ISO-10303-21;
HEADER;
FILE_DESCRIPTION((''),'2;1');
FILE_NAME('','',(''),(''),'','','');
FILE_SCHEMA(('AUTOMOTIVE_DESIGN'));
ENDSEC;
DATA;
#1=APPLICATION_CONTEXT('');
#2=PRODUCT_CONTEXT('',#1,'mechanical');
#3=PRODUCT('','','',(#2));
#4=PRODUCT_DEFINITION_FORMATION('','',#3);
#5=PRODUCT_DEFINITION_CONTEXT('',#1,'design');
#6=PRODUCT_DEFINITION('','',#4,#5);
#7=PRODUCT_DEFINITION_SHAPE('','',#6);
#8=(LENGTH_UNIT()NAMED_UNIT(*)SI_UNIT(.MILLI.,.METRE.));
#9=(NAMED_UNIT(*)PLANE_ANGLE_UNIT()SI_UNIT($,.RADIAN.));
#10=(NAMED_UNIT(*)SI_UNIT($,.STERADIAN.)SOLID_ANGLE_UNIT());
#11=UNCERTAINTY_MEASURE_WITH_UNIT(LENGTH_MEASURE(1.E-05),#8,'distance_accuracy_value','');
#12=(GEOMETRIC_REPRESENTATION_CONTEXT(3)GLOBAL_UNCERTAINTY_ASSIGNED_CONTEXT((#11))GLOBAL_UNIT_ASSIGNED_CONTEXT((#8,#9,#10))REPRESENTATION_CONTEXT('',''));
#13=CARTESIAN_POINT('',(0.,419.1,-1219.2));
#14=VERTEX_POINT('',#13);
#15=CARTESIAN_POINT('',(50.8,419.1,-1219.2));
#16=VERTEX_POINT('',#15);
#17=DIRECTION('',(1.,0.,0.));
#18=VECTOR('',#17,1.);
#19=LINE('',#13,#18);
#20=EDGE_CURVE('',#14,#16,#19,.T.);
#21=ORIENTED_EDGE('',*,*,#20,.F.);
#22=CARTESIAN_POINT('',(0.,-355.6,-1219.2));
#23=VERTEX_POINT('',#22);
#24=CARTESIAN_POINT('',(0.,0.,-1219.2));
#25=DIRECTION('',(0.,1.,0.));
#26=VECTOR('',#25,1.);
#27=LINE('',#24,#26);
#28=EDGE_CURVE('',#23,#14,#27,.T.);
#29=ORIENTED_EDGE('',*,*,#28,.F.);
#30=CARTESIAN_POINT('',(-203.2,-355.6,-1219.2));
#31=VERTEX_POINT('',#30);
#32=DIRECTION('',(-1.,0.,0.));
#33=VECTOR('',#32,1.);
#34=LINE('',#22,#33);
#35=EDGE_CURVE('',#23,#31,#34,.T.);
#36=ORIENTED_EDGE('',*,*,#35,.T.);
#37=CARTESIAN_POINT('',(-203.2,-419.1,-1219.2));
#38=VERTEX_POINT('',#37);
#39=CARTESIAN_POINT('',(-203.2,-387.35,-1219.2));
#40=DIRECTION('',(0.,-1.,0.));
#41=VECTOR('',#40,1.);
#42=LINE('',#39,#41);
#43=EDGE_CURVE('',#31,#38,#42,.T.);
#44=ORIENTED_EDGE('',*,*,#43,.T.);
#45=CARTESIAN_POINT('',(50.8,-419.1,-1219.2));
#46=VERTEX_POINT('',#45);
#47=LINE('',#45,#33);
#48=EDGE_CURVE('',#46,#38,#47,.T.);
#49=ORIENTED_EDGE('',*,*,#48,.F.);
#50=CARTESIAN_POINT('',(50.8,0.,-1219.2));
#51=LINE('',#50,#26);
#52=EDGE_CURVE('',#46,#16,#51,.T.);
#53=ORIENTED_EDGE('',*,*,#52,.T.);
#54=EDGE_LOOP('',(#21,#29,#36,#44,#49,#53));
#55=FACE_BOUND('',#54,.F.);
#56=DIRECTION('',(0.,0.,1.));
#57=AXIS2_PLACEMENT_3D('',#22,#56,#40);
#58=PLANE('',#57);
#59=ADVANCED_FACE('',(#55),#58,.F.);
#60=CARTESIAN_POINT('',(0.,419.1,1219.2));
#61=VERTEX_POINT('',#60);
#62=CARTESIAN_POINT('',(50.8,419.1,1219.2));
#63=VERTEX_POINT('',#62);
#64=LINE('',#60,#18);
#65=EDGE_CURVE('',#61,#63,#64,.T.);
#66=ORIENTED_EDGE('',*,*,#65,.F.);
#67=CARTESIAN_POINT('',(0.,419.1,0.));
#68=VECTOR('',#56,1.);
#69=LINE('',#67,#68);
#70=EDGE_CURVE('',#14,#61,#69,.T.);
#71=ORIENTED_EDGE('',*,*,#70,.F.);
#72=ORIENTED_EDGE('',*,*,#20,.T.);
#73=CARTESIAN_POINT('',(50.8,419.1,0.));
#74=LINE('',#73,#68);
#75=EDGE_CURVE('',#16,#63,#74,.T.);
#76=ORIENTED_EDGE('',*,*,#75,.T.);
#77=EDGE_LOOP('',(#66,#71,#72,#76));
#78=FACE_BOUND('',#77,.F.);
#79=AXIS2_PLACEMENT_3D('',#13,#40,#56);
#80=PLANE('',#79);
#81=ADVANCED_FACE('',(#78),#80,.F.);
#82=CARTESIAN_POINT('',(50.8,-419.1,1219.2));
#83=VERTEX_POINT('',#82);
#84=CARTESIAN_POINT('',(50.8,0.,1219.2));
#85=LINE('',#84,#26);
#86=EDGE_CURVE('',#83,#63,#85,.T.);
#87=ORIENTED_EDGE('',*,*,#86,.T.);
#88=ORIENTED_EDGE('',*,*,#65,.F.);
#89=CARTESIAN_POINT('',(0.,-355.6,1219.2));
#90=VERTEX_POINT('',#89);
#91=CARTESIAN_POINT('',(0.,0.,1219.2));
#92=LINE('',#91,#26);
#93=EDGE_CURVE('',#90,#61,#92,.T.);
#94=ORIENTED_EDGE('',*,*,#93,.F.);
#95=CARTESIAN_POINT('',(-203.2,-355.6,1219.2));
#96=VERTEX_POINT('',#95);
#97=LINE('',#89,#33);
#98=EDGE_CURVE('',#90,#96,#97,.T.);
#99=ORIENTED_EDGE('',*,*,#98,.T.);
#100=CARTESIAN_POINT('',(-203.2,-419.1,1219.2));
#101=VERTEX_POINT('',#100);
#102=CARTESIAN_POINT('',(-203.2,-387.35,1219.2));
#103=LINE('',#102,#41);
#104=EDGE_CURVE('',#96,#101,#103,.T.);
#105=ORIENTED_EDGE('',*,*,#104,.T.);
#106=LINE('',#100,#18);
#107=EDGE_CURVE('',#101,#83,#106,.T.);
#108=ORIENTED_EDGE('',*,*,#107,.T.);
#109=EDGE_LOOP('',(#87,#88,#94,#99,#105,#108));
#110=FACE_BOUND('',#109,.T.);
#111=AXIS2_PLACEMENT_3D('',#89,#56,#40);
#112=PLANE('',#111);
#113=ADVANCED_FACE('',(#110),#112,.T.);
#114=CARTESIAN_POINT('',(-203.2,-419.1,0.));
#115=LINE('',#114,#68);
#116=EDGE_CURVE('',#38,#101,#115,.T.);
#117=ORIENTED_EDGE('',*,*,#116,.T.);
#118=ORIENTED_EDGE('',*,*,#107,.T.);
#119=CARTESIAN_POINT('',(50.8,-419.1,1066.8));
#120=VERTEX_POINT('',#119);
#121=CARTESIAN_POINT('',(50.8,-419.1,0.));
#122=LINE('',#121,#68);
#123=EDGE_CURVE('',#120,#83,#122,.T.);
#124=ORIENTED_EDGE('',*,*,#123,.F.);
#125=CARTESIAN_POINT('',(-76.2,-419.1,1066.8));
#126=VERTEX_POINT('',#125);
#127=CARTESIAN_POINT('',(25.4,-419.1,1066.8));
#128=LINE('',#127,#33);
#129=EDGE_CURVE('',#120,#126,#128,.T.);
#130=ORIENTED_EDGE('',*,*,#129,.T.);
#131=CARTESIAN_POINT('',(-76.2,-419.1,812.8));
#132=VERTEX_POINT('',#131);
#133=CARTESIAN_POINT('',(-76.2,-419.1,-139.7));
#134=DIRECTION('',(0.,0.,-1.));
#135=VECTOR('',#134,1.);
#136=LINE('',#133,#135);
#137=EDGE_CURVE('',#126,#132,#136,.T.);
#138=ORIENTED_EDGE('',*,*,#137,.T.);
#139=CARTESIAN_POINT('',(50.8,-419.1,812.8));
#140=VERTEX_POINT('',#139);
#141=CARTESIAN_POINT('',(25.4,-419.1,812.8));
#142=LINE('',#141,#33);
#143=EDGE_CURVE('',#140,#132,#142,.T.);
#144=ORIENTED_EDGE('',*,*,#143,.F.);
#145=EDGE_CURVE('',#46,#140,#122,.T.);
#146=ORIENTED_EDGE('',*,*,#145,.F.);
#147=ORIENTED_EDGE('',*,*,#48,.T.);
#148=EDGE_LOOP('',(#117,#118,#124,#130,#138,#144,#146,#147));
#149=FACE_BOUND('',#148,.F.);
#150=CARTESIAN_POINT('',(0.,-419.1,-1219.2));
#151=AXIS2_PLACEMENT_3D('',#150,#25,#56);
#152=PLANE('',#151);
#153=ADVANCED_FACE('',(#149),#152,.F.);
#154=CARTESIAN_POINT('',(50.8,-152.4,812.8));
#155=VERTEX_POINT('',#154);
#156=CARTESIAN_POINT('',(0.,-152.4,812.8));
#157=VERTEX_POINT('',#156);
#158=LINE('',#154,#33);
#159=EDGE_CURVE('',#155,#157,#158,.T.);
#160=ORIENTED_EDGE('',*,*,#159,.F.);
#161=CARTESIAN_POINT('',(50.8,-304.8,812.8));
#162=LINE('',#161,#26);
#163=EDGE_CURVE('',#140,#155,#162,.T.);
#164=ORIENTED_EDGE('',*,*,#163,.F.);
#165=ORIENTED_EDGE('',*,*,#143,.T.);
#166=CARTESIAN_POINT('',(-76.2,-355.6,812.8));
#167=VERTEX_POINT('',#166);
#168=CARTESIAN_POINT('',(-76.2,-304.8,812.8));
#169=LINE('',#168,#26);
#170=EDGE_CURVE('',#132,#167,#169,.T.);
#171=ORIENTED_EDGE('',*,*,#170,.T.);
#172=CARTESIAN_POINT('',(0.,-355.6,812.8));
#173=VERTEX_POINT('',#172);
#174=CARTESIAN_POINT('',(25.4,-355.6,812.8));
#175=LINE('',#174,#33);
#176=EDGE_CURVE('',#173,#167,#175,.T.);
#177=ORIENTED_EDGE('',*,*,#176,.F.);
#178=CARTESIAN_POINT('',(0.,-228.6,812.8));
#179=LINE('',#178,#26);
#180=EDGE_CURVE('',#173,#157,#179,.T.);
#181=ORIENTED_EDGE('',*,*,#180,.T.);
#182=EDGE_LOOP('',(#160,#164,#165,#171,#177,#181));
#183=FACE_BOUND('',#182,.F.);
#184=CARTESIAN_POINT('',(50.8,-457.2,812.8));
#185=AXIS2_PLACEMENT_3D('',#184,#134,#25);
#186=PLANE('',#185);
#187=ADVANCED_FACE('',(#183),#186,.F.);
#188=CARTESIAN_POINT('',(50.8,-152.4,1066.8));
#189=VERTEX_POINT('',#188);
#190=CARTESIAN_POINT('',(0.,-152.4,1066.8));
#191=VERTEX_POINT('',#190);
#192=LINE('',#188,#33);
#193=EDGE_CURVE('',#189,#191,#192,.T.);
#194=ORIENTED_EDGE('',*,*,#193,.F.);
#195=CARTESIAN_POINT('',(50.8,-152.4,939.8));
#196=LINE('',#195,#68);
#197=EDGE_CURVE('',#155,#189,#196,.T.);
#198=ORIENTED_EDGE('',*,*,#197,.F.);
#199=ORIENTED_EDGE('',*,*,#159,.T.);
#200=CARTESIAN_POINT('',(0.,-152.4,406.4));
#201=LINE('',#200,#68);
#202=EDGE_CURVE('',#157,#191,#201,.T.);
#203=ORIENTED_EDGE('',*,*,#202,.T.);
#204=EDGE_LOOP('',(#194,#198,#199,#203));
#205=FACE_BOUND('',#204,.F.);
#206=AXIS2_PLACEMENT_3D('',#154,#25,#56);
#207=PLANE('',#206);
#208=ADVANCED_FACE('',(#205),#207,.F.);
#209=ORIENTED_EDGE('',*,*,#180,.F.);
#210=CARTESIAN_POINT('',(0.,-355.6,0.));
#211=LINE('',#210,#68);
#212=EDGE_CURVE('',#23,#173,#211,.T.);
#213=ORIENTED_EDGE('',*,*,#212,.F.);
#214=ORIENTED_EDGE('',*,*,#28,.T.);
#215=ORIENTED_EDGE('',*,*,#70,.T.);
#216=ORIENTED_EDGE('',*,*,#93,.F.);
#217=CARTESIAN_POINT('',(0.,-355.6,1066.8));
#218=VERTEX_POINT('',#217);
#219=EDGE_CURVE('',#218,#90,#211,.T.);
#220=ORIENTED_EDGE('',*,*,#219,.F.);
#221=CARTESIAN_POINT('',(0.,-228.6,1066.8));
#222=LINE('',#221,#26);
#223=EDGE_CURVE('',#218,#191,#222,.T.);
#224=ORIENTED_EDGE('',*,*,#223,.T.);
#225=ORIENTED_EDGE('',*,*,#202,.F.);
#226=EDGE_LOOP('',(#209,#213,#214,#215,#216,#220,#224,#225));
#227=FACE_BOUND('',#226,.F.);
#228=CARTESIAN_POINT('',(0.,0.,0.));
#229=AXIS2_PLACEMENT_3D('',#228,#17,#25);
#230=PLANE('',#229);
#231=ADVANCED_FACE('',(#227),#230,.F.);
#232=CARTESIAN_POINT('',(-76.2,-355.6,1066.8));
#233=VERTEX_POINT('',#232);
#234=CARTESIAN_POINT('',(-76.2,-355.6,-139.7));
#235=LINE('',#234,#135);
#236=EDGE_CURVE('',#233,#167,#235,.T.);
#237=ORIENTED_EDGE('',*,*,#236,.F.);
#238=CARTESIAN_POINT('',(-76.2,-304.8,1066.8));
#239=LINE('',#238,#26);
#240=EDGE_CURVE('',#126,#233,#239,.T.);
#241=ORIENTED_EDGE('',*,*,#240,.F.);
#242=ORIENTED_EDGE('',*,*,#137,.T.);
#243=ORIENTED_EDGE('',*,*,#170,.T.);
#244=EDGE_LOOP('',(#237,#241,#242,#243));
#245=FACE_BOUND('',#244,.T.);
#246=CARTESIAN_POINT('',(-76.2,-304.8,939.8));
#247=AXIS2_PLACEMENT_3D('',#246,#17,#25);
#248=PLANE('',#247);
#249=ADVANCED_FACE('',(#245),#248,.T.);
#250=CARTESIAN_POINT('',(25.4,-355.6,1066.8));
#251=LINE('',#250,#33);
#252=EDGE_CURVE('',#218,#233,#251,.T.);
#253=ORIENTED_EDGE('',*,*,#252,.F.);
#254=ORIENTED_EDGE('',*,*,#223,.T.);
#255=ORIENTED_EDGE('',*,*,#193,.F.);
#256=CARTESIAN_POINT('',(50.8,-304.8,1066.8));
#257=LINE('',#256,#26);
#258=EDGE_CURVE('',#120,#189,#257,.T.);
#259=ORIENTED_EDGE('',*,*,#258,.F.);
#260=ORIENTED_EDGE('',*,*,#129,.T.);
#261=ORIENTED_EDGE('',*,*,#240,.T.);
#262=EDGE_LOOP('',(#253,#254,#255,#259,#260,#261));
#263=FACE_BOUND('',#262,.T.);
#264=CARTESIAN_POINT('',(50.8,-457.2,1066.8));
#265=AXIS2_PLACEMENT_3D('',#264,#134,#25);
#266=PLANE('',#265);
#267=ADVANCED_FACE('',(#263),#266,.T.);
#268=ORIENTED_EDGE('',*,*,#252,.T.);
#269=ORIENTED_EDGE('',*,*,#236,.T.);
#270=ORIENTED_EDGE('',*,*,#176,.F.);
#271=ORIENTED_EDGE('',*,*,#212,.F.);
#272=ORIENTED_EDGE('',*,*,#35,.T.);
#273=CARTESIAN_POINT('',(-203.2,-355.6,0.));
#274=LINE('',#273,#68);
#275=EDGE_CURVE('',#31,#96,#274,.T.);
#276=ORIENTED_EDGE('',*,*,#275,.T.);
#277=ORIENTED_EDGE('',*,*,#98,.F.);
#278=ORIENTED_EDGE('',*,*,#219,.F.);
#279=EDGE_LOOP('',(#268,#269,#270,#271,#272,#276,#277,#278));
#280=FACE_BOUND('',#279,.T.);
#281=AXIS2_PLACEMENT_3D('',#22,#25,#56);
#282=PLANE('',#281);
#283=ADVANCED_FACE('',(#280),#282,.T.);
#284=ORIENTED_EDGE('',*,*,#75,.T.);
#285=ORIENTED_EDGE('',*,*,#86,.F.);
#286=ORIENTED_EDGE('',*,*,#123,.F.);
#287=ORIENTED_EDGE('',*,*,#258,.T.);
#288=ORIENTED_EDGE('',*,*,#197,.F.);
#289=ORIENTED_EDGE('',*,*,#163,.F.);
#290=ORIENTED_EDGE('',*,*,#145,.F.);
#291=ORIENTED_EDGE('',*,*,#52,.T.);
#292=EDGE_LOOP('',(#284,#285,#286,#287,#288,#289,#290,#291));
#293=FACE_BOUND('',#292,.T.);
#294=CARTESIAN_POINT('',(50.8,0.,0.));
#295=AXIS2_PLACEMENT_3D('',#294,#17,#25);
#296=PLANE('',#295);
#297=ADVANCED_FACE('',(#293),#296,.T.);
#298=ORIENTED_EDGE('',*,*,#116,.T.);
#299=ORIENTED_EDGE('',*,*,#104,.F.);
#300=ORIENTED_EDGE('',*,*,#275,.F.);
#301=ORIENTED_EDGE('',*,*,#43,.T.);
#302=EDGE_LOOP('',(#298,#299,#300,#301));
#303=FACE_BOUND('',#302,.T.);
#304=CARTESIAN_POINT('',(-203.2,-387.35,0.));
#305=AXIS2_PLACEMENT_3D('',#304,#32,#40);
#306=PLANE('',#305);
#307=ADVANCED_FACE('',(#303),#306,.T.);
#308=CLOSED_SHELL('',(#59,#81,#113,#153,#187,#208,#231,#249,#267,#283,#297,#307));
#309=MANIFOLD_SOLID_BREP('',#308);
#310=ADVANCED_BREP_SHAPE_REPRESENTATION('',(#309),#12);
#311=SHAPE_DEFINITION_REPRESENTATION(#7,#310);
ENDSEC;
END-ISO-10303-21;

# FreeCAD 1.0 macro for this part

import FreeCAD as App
import Part
import Sketcher
Q = App.Units.Quantity

doc = App.newDocument("Part")
body = doc.addObject("PartDesign::Body", "Body")

# Sketch on YZ plane
sketch1 = doc.addObject("Sketcher::SketchObject", "Sketch")
body.addObject(sketch1)
sketch1.AttachmentSupport = (doc.YZ_Plane, [""])
sketch1.MapMode = "FlatFace"
sketch1.addGeometry([
    Part.LineSegment(App.Vector(-419, 1219, 0), App.Vector(-419, -1219, 0)),
    Part.LineSegment(App.Vector(-419, -1219, 0), App.Vector(419, -1219, 0)),
    Part.LineSegment(App.Vector(419, -1219, 0), App.Vector(419, 1219, 0)),
    Part.LineSegment(App.Vector(419, 1219, 0), App.Vector(-419, 1219, 0)),
], False)
sketch1.addConstraint([
    Sketcher.Constraint("Coincident", 0, 2, 1, 1),
    Sketcher.Constraint("Coincident", 1, 2, 2, 1),
    Sketcher.Constraint("Coincident", 2, 2, 3, 1),
    Sketcher.Constraint("Coincident", 3, 2, 0, 1),
    Sketcher.Constraint("Vertical", 0),
    Sketcher.Constraint("Horizontal", 1),
    Sketcher.Constraint("Vertical", 2),
    Sketcher.Constraint("Horizontal", 3),
    Sketcher.Constraint("Symmetric", 0, 2, 2, 2, -1, 1),
    Sketcher.Constraint("DistanceX", 1, 1, 1, 2, Q("33 in")),
    Sketcher.Constraint("DistanceY", 0, 2, 0, 1, Q("96 in")),
])
pad1 = doc.addObject("PartDesign::Pad", "Pad")
body.addObject(pad1)
pad1.Profile = sketch1
pad1.Length = Q("2 in")

# Sketch on YZ plane
sketch2 = doc.addObject("Sketcher::SketchObject", "Sketch001")
body.addObject(sketch2)
sketch2.AttachmentSupport = (doc.YZ_Plane, [""])
sketch2.MapMode = "FlatFace"
sketch2.addGeometry([
    Part.LineSegment(App.Vector(-356, 1219, 0), App.Vector(-356, -1219, 0)),
    Part.LineSegment(App.Vector(-356, -1219, 0), App.Vector(-419, -1219, 0)),
    Part.LineSegment(App.Vector(-419, -1219, 0), App.Vector(-419, 1219, 0)),
    Part.LineSegment(App.Vector(-419, 1219, 0), App.Vector(-356, 1219, 0)),
], False)
sketch2.addConstraint([
    Sketcher.Constraint("Coincident", 0, 2, 1, 1),
    Sketcher.Constraint("Coincident", 1, 2, 2, 1),
    Sketcher.Constraint("Coincident", 2, 2, 3, 1),
    Sketcher.Constraint("Coincident", 3, 2, 0, 1),
    Sketcher.Constraint("Vertical", 0),
    Sketcher.Constraint("Horizontal", 1),
    Sketcher.Constraint("Vertical", 2),
    Sketcher.Constraint("Horizontal", 3),
    Sketcher.Constraint("DistanceY", 0, 2, 0, 1, Q("96 in")),
    Sketcher.Constraint("DistanceX", 1, 2, 1, 1, Q("2.5 in")),
    Sketcher.Constraint("DistanceX", 0, 2, -1, 1, Q("14 in")),
    Sketcher.Constraint("DistanceY", 0, 2, -1, 1, Q("48 in")),
])
pad2 = doc.addObject("PartDesign::Pad", "Pad001")
body.addObject(pad2)
pad2.Profile = sketch2
pad2.Length = Q("8 in")
pad2.Reversed = True

# Sketch on YZ plane
sketch3 = doc.addObject("Sketcher::SketchObject", "Sketch002")
body.addObject(sketch3)
sketch3.AttachmentSupport = (doc.YZ_Plane, [""])
sketch3.MapMode = "FlatFace"
sketch3.AttachmentOffset = App.Placement(App.Vector(0, 0, 2 * 25.4), App.Rotation())
sketch3.addGeometry([
    Part.LineSegment(App.Vector(-457, 1067, 0), App.Vector(-457, 813, 0)),
    Part.LineSegment(App.Vector(-457, 813, 0), App.Vector(-152, 813, 0)),
    Part.LineSegment(App.Vector(-152, 813, 0), App.Vector(-152, 1067, 0)),
    Part.LineSegment(App.Vector(-152, 1067, 0), App.Vector(-457, 1067, 0)),
], False)
sketch3.addConstraint([
    Sketcher.Constraint("Coincident", 0, 2, 1, 1),
    Sketcher.Constraint("Coincident", 1, 2, 2, 1),
    Sketcher.Constraint("Coincident", 2, 2, 3, 1),
    Sketcher.Constraint("Coincident", 3, 2, 0, 1),
    Sketcher.Constraint("Vertical", 0),
    Sketcher.Constraint("Horizontal", 1),
    Sketcher.Constraint("Vertical", 2),
    Sketcher.Constraint("Horizontal", 3),
    Sketcher.Constraint("DistanceX", 1, 1, 1, 2, Q("12 in")),
    Sketcher.Constraint("DistanceY", 0, 2, 0, 1, Q("10 in")),
    Sketcher.Constraint("DistanceX", 0, 2, -1, 1, Q("18 in")),
    Sketcher.Constraint("DistanceY", -1, 1, 0, 2, Q("32 in")),
])
pocket1 = doc.addObject("PartDesign::Pocket", "Pocket")
body.addObject(pocket1)
pocket1.Profile = sketch3
pocket1.Length = Q("5 in")

doc.recompute()
